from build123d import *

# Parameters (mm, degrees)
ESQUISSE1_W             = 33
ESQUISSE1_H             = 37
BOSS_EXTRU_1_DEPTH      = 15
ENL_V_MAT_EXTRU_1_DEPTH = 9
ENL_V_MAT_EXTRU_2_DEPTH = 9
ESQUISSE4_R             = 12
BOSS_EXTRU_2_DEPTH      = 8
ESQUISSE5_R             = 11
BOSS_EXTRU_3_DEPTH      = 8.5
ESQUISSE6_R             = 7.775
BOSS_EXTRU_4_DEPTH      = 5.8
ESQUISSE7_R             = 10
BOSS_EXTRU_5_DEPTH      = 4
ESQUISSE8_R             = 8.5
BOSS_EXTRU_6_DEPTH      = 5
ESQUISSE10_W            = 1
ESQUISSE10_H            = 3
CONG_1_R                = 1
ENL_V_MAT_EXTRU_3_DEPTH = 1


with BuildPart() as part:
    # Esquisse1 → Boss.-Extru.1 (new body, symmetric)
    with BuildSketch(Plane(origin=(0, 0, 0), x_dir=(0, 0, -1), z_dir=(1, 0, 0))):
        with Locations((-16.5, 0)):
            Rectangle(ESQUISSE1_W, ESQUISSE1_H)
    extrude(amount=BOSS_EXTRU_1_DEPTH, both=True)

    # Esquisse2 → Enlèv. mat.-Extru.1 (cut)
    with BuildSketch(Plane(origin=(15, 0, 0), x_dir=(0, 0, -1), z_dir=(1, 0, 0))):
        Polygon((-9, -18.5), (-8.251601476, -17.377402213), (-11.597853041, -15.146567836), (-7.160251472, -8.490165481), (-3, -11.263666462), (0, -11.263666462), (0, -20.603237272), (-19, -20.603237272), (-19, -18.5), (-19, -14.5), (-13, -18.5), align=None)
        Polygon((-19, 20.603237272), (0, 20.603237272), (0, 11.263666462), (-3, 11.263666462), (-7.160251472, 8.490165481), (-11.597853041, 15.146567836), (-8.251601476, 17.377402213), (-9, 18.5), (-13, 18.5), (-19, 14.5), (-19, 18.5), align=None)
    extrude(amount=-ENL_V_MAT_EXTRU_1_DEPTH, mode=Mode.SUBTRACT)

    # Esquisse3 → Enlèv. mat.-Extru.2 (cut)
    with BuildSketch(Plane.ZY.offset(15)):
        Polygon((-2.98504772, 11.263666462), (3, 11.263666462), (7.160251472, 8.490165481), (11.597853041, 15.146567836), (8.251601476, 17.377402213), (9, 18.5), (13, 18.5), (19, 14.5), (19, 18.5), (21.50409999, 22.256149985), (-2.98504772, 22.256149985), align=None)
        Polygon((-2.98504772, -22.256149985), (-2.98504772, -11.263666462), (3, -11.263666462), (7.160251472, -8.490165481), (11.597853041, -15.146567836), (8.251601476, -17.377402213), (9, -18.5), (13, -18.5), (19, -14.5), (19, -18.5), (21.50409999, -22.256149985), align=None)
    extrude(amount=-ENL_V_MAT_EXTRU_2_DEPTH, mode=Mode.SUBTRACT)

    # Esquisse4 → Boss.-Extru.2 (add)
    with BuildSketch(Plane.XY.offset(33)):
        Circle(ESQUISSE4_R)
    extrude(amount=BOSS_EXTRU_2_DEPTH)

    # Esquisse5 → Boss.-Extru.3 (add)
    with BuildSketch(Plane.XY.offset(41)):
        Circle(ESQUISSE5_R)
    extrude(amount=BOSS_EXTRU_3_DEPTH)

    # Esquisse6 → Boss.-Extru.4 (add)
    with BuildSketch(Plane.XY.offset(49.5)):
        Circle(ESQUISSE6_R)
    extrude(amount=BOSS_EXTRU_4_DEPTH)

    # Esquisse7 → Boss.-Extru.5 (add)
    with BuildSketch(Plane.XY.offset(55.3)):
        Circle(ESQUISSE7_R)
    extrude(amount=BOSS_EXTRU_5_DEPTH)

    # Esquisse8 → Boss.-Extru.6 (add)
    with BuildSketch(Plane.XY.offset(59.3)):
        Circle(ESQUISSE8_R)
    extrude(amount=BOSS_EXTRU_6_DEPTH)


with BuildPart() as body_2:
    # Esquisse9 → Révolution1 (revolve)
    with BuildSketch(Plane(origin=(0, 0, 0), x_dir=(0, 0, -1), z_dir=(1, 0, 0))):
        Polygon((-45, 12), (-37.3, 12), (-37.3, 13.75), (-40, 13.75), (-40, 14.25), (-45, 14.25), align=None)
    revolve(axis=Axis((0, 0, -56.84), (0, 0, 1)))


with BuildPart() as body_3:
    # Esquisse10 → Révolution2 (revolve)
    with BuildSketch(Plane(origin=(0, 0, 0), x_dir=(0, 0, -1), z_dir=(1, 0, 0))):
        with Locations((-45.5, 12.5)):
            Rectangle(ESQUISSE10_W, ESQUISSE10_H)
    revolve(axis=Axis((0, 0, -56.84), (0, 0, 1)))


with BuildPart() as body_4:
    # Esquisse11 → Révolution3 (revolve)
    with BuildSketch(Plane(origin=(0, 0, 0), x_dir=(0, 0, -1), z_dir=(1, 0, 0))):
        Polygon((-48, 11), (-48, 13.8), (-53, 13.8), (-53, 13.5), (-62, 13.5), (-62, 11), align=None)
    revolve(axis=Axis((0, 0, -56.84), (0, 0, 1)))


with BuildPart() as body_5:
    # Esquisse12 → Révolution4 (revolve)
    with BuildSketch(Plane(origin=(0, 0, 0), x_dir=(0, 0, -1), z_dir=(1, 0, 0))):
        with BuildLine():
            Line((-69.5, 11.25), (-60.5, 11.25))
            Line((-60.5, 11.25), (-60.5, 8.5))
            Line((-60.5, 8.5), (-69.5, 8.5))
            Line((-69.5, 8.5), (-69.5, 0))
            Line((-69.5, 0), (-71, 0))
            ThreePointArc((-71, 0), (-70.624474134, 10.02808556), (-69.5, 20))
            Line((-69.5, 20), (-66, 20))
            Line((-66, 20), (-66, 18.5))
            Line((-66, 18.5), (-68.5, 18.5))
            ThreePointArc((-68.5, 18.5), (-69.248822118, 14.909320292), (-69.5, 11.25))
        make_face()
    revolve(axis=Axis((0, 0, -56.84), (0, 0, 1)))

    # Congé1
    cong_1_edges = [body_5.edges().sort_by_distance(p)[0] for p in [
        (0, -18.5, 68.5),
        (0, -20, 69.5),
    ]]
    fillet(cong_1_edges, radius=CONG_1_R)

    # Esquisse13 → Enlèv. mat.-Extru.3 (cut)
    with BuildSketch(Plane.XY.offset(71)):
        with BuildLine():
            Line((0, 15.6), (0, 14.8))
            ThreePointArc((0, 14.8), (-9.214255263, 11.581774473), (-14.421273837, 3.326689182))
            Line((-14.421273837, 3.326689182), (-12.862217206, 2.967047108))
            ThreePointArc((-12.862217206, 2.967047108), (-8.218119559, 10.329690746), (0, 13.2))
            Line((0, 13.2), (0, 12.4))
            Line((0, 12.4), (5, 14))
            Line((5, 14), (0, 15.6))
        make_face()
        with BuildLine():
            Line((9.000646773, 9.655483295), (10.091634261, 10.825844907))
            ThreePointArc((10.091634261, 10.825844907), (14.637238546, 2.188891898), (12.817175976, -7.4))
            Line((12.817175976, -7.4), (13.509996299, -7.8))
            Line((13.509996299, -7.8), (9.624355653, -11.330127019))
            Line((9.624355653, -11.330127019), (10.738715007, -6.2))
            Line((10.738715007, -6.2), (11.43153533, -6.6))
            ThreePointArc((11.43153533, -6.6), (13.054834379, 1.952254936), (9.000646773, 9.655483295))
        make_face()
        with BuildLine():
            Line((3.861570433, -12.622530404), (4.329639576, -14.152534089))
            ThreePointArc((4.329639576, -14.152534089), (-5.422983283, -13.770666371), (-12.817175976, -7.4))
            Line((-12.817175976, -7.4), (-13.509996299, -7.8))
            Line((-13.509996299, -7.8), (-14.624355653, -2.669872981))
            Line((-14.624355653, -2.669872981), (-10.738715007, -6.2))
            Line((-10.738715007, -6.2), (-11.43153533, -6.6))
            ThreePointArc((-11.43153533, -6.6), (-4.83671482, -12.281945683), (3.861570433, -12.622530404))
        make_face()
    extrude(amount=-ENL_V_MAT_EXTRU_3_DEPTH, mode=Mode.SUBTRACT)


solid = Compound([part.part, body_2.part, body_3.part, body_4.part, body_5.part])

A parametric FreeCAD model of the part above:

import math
import FreeCAD as App
import Part
import Sketcher
from FreeCAD import Vector
Q = App.Units.Quantity


def edges_at(feature, points):
    """Names of the edges that pass closest to the given points."""
    edges = feature.Shape.Edges
    near = lambda p: min(range(len(edges)), key=lambda i: edges[i].distToShape(Part.Vertex(*p))[0])
    return sorted({f"Edge{near(p) + 1}" for p in points})


def add_polygon(sketch, points):
    """Adds a closed chain of lines whose ends are joined by coincident constraints."""
    first, n = sketch.GeometryCount, len(points)
    for a, b in zip(points, points[1:] + points[:1]):
        sketch.addGeometry(Part.LineSegment(App.Vector(*a, 0), App.Vector(*b, 0)), False)
    for i in range(n):
        sketch.addConstraint(Sketcher.Constraint("Coincident", first + i, 2, first + (i + 1) % n, 1))

doc = App.newDocument("Part")
body = doc.addObject("PartDesign::Body", "Body")

sketch1 = body.newObject("Sketcher::SketchObject", "Sketch")
sketch1.AttachmentSupport = (doc.getObject("YZ_Plane"), [""])
sketch1.MapMode = "FlatFace"
add_polygon(sketch1, [(18, 33), (-18, 33), (-18, 0), (18, 0)])
sketch1.addConstraint([
    Sketcher.Constraint("Horizontal", 0),
    Sketcher.Constraint("Vertical", 1),
    Sketcher.Constraint("Horizontal", 2),
    Sketcher.Constraint("Vertical", 3),
    Sketcher.Constraint("Symmetric", 1, 2, 2, 2, -1, 1),
    Sketcher.Constraint("DistanceX", 0, 2, 0, 1, Q("37 mm")),
    Sketcher.Constraint("DistanceY", 1, 2, 1, 1, Q("33 mm")),
])
pad1 = body.newObject("PartDesign::Pad", "Pad")
pad1.Profile = sketch1
pad1.Length = 30
pad1.Midplane = True

sketch2 = body.newObject("Sketcher::SketchObject", "Sketch001")
sketch2.AttachmentSupport = (doc.getObject("YZ_Plane"), [""])
sketch2.MapMode = "FlatFace"
sketch2.AttachmentOffset = App.Placement(Vector(0, 0, 15), App.Rotation())
add_polygon(sketch2, [(-17.4, 8.3), (-18.5, 9), (-18.5, 13), (-14.5, 19), (-20.6, 19), (-20.6, 0), (-11.3, 0), (-11.3, 3), (-8.5, 7.2), (-15.1, 11.6)])
add_polygon(sketch2, [(20.6, 0), (20.6, 19), (14.5, 19), (18.5, 13), (18.5, 9), (17.4, 8.3), (15.1, 11.6), (8.5, 7.2), (11.3, 3), (11.3, 0)])
sketch2.addConstraint([
    Sketcher.Constraint("Vertical", 1),
    Sketcher.Constraint("Horizontal", 3),
    Sketcher.Constraint("Vertical", 4),
    Sketcher.Constraint("Horizontal", 5),
    Sketcher.Constraint("Vertical", 6),
    Sketcher.Constraint("Vertical", 10),
    Sketcher.Constraint("Horizontal", 11),
    Sketcher.Constraint("Vertical", 13),
    Sketcher.Constraint("Vertical", 18),
    Sketcher.Constraint("Horizontal", 19),
    Sketcher.Constraint("Symmetric", 5, 2, 18, 2, -1, 1),
    Sketcher.Constraint("Symmetric", 3, 2, 10, 2, -2),
    Sketcher.Constraint("Symmetric", 1, 2, 12, 2, -2),
    Sketcher.Constraint("Symmetric", 9, 2, 14, 2, -2),
    Sketcher.Constraint("Symmetric", 8, 2, 15, 2, -2),
    Sketcher.Constraint("Symmetric", 7, 2, 16, 2, -2),
    Sketcher.Constraint("PointOnObject", 4, 2, -1),
    Sketcher.Constraint("Perpendicular", 0, 2),
    Sketcher.Constraint("Parallel", 2, 7),
    Sketcher.Constraint("Perpendicular", 7, 8),
    Sketcher.Constraint("Perpendicular", 8, 9),
    Sketcher.Constraint("Perpendicular", 12, 14),
    Sketcher.Constraint("Perpendicular", 14, 15),
    Sketcher.Constraint("Perpendicular", 16, 17),
    Sketcher.Constraint("DistanceY", 1, 1, 1, 2, Q("4 mm")),
    Sketcher.Constraint("DistanceY", 4, 2, 4, 1, Q("19 mm")),
    Sketcher.Constraint("DistanceY", 6, 1, 6, 2, Q("3 mm")),
    Sketcher.Constraint("Distance", 7, Q("5 mm")),
    Sketcher.Constraint("Distance", 8, Q("8 mm")),
    Sketcher.Constraint("DistanceY", -1, 1, 0, 2, Q("9 mm")),
    Sketcher.Constraint("DistanceX", 1, 2, 2, 2, Q("4 mm")),
    Sketcher.Constraint("DistanceX", 2, 2, 11, 2, Q("29 mm")),
    Sketcher.Constraint("DistanceX", 5, 1, 5, 2, Q("9.339571 mm")),
    Sketcher.Constraint("DistanceY", -1, 1, 9, 2, Q("8.251601 mm")),
])
pocket1 = body.newObject("PartDesign::Pocket", "Pocket")
pocket1.Profile = sketch2
pocket1.Length = 9

sketch3 = body.newObject("Sketcher::SketchObject", "Sketch002")
sketch3.AttachmentSupport = (doc.getObject("YZ_Plane"), [""])
sketch3.MapMode = "FlatFace"
sketch3.AttachmentOffset = App.Placement(Vector(0, 0, -15), App.Rotation())
add_polygon(sketch3, [(11.3, -3), (11.3, 3), (8.5, 7.2), (15.1, 11.6), (17.4, 8.3), (18.5, 9), (18.5, 13), (14.5, 19), (18.5, 19), (22.3, 21.5), (22.3, -3)])
add_polygon(sketch3, [(-11.3, -3), (-22.3, -3), (-22.3, 21.5), (-18.5, 19), (-14.5, 19), (-18.5, 13), (-18.5, 9), (-17.4, 8.3), (-15.1, 11.6), (-8.5, 7.2), (-11.3, 3)])
sketch3.addConstraint([
    Sketcher.Constraint("Vertical", 0),
    Sketcher.Constraint("Vertical", 5),
    Sketcher.Constraint("Horizontal", 7),
    Sketcher.Constraint("Vertical", 9),
    Sketcher.Constraint("Horizontal", 10),
    Sketcher.Constraint("Horizontal", 11),
    Sketcher.Constraint("Vertical", 12),
    Sketcher.Constraint("Horizontal", 14),
    Sketcher.Constraint("Vertical", 16),
    Sketcher.Constraint("Vertical", 21),
    Sketcher.Constraint("Symmetric", 9, 2, 11, 2, -2),
    Sketcher.Constraint("Symmetric", 7, 2, 13, 2, -2),
    Sketcher.Constraint("Symmetric", 5, 2, 15, 2, -2),
    Sketcher.Constraint("Symmetric", 3, 2, 17, 2, -2),
    Sketcher.Constraint("Symmetric", 2, 2, 18, 2, -2),
    Sketcher.Constraint("Symmetric", 1, 2, 19, 2, -2),
    Sketcher.Constraint("Symmetric", 0, 2, 20, 2, -2),
    Sketcher.Constraint("Perpendicular", 1, 2),
    Sketcher.Constraint("Perpendicular", 2, 3),
    Sketcher.Constraint("Perpendicular", 3, 4),
    Sketcher.Constraint("Perpendicular", 4, 6),
    Sketcher.Constraint("Perpendicular", 6, 8),
    Sketcher.Constraint("Perpendicular", 13, 15),
    Sketcher.Constraint("Perpendicular", 15, 17),
    Sketcher.Constraint("Perpendicular", 17, 18),
    Sketcher.Constraint("Vertical", 5, 2, 7, 2),
    Sketcher.Constraint("Equal", 14, 5),
    Sketcher.Constraint("DistanceX", 7, 1, 7, 2, Q("4 mm")),
    Sketcher.Constraint("Distance", 1, Q("5 mm")),
    Sketcher.Constraint("Distance", 2, Q("8 mm")),
    Sketcher.Constraint("DistanceY", -1, 1, 0, 2, Q("3 mm")),
    Sketcher.Constraint("DistanceY", -1, 1, 4, 2, Q("9 mm")),
    Sketcher.Constraint("DistanceY", -1, 1, 6, 2, Q("19 mm")),
    Sketcher.Constraint("DistanceX", 13, 2, 6, 2, Q("33 mm")),
    Sketcher.Constraint("DistanceY", -1, 1, 3, 2, Q("8.251601 mm")),
    Sketcher.Constraint("DistanceY", -1, 1, 8, 2, Q("21.5041 mm")),
    Sketcher.Constraint("DistanceY", 9, 2, 2, 2, Q("14.582901 mm")),
])
pocket2 = body.newObject("PartDesign::Pocket", "Pocket001")
pocket2.Profile = sketch3
pocket2.Length = 9
pocket2.Reversed = True

sketch4 = body.newObject("Sketcher::SketchObject", "Sketch003")
sketch4.AttachmentSupport = (doc.getObject("XY_Plane"), [""])
sketch4.MapMode = "FlatFace"
sketch4.AttachmentOffset = App.Placement(Vector(0, 0, 33), App.Rotation())
sketch4.addGeometry(Part.Circle(Vector(0, 0, 0), Vector(0, 0, 1), 12), False)
sketch4.addConstraint([
    Sketcher.Constraint("Coincident", 0, 3, -1, 1),
    Sketcher.Constraint("Diameter", 0, Q("24 mm")),
])
pad2 = body.newObject("PartDesign::Pad", "Pad001")
pad2.Profile = sketch4
pad2.Length = 8

sketch5 = body.newObject("Sketcher::SketchObject", "Sketch004")
sketch5.AttachmentSupport = (doc.getObject("XY_Plane"), [""])
sketch5.MapMode = "FlatFace"
sketch5.AttachmentOffset = App.Placement(Vector(0, 0, 41), App.Rotation())
sketch5.addGeometry(Part.Circle(Vector(0, 0, 0), Vector(0, 0, 1), 11), False)
sketch5.addConstraint([
    Sketcher.Constraint("Coincident", 0, 3, -1, 1),
    Sketcher.Constraint("Diameter", 0, Q("22 mm")),
])
pad3 = body.newObject("PartDesign::Pad", "Pad002")
pad3.Profile = sketch5
pad3.Length = 8.5

sketch6 = body.newObject("Sketcher::SketchObject", "Sketch005")
sketch6.AttachmentSupport = (doc.getObject("XY_Plane"), [""])
sketch6.MapMode = "FlatFace"
sketch6.AttachmentOffset = App.Placement(Vector(0, 0, 49.5), App.Rotation())
sketch6.addGeometry(Part.Circle(Vector(0, 0, 0), Vector(0, 0, 1), 8), False)
sketch6.addConstraint([
    Sketcher.Constraint("Coincident", 0, 3, -1, 1),
    Sketcher.Constraint("Diameter", 0, Q("15.55 mm")),
])
pad4 = body.newObject("PartDesign::Pad", "Pad003")
pad4.Profile = sketch6
pad4.Length = 5.8

sketch7 = body.newObject("Sketcher::SketchObject", "Sketch006")
sketch7.AttachmentSupport = (doc.getObject("XY_Plane"), [""])
sketch7.MapMode = "FlatFace"
sketch7.AttachmentOffset = App.Placement(Vector(0, 0, 55.3), App.Rotation())
sketch7.addGeometry(Part.Circle(Vector(0, 0, 0), Vector(0, 0, 1), 10), False)
sketch7.addConstraint([
    Sketcher.Constraint("Coincident", 0, 3, -1, 1),
    Sketcher.Constraint("Diameter", 0, Q("20 mm")),
])
pad5 = body.newObject("PartDesign::Pad", "Pad004")
pad5.Profile = sketch7
pad5.Length = 4

sketch8 = body.newObject("Sketcher::SketchObject", "Sketch007")
sketch8.AttachmentSupport = (doc.getObject("XY_Plane"), [""])
sketch8.MapMode = "FlatFace"
sketch8.AttachmentOffset = App.Placement(Vector(0, 0, 59.3), App.Rotation())
sketch8.addGeometry(Part.Circle(Vector(0, 0, 0), Vector(0, 0, 1), 8), False)
sketch8.addConstraint([
    Sketcher.Constraint("Coincident", 0, 3, -1, 1),
    Sketcher.Constraint("Diameter", 0, Q("17 mm")),
])
pad6 = body.newObject("PartDesign::Pad", "Pad005")
pad6.Profile = sketch8
pad6.Length = 5
body2 = doc.addObject("PartDesign::Body", "Body001")

sketch9 = body2.newObject("Sketcher::SketchObject", "Sketch008")
sketch9.AttachmentSupport = (doc.getObject("YZ_Plane001"), [""])
sketch9.MapMode = "FlatFace"
add_polygon(sketch9, [(12, 45), (12, 37.3), (13.8, 37.3), (13.8, 40), (14.2, 40), (14.2, 45)])
sketch9.addConstraint([
    Sketcher.Constraint("Vertical", 0),
    Sketcher.Constraint("Horizontal", 1),
    Sketcher.Constraint("Vertical", 2),
    Sketcher.Constraint("Horizontal", 3),
    Sketcher.Constraint("Vertical", 4),
    Sketcher.Constraint("Horizontal", 5),
    Sketcher.Constraint("DistanceY", 4, 1, 4, 2, Q("5 mm")),
    Sketcher.Constraint("DistanceX", 3, 1, 3, 2, Q("0.5 mm")),
    Sketcher.Constraint("DistanceY", 0, 2, 0, 1, Q("7.7 mm")),
    Sketcher.Constraint("DistanceX", -1, 1, 0, 2, Q("12 mm")),
    Sketcher.Constraint("DistanceY", -1, 1, 2, 2, Q("40 mm")),
    Sketcher.Constraint("DistanceX", 1, 1, 1, 2, Q("1.75 mm")),
])
revolution = body2.newObject("PartDesign::Revolution", "Revolution")
revolution.Profile = sketch9
revolution.ReferenceAxis = (sketch9, ["V_Axis"])
revolution.Angle = 360
body3 = doc.addObject("PartDesign::Body", "Body002")

sketch10 = body3.newObject("Sketcher::SketchObject", "Sketch009")
sketch10.AttachmentSupport = (doc.getObject("YZ_Plane002"), [""])
sketch10.MapMode = "FlatFace"
add_polygon(sketch10, [(14, 46), (11, 46), (11, 45), (14, 45)])
sketch10.addConstraint([
    Sketcher.Constraint("Horizontal", 0),
    Sketcher.Constraint("Vertical", 1),
    Sketcher.Constraint("Horizontal", 2),
    Sketcher.Constraint("Vertical", 3),
    Sketcher.Constraint("DistanceX", 0, 2, 0, 1, Q("3 mm")),
    Sketcher.Constraint("DistanceY", 1, 2, 1, 1, Q("1 mm")),
    Sketcher.Constraint("DistanceX", -1, 1, 0, 2, Q("11 mm")),
    Sketcher.Constraint("DistanceY", -1, 1, 0, 2, Q("46 mm")),
])
revolution2 = body3.newObject("PartDesign::Revolution", "Revolution001")
revolution2.Profile = sketch10
revolution2.ReferenceAxis = (sketch10, ["V_Axis"])
revolution2.Angle = 360
body4 = doc.addObject("PartDesign::Body", "Body003")

sketch11 = body4.newObject("Sketcher::SketchObject", "Sketch010")
sketch11.AttachmentSupport = (doc.getObject("YZ_Plane003"), [""])
sketch11.MapMode = "FlatFace"
add_polygon(sketch11, [(11, 48), (13.8, 48), (13.8, 53), (13.5, 53), (13.5, 62), (11, 62)])
sketch11.addConstraint([
    Sketcher.Constraint("Horizontal", 0),
    Sketcher.Constraint("Vertical", 1),
    Sketcher.Constraint("Horizontal", 2),
    Sketcher.Constraint("Vertical", 3),
    Sketcher.Constraint("Horizontal", 4),
    Sketcher.Constraint("Vertical", 5),
    Sketcher.Constraint("DistanceY", 1, 1, 1, 2, Q("5 mm")),
    Sketcher.Constraint("DistanceY", 3, 1, 3, 2, Q("9 mm")),
    Sketcher.Constraint("DistanceX", 0, 1, 0, 2, Q("2.8 mm")),
    Sketcher.Constraint("DistanceX", 2, 2, 2, 1, Q("0.3 mm")),
    Sketcher.Constraint("DistanceY", -1, 1, 0, 2, Q("48 mm")),
    Sketcher.Constraint("DistanceX", -1, 1, 4, 2, Q("11 mm")),
])
revolution3 = body4.newObject("PartDesign::Revolution", "Revolution002")
revolution3.Profile = sketch11
revolution3.ReferenceAxis = (sketch11, ["V_Axis"])
revolution3.Angle = 360
body5 = doc.addObject("PartDesign::Body", "Body004")

sketch12 = body5.newObject("Sketcher::SketchObject", "Sketch011")
sketch12.AttachmentSupport = (doc.getObject("YZ_Plane004"), [""])
sketch12.MapMode = "FlatFace"
sketch12.addGeometry([
    Part.LineSegment(Vector(11.2, 60.5, 0), Vector(11.2, 69.5, 0)),
    Part.ArcOfCircle(Part.Circle(Vector(11.3, 42.7, 0), Vector(0, 0, 1), 26.8), math.radians(74.29), math.radians(90)),
    Part.LineSegment(Vector(18.5, 68.5, 0), Vector(18.5, 66, 0)),
    Part.LineSegment(Vector(18.5, 66, 0), Vector(20, 66, 0)),
    Part.LineSegment(Vector(20, 66, 0), Vector(20, 69.5, 0)),
    Part.ArcOfCircle(Part.Circle(Vector(0, -63.1, 0), Vector(0, 0, 1), 134.1), math.radians(81.42), math.radians(90)),
    Part.LineSegment(Vector(0, 71, 0), Vector(0, 69.5, 0)),
    Part.LineSegment(Vector(0, 69.5, 0), Vector(8.5, 69.5, 0)),
    Part.LineSegment(Vector(8.5, 69.5, 0), Vector(8.5, 60.5, 0)),
    Part.LineSegment(Vector(8.5, 60.5, 0), Vector(11.2, 60.5, 0)),
], False)
sketch12.addConstraint([
    Sketcher.Constraint("Coincident", 0, 2, 1, 2),
    Sketcher.Constraint("Coincident", 1, 1, 2, 1),
    Sketcher.Constraint("Coincident", 2, 2, 3, 1),
    Sketcher.Constraint("Coincident", 3, 2, 4, 1),
    Sketcher.Constraint("Coincident", 4, 2, 5, 1),
    Sketcher.Constraint("Coincident", 5, 2, 6, 1),
    Sketcher.Constraint("Coincident", 6, 2, 7, 1),
    Sketcher.Constraint("Coincident", 7, 2, 8, 1),
    Sketcher.Constraint("Coincident", 8, 2, 9, 1),
    Sketcher.Constraint("Coincident", 9, 2, 0, 1),
    Sketcher.Constraint("Vertical", 0),
    Sketcher.Constraint("Vertical", 2),
    Sketcher.Constraint("Horizontal", 3),
    Sketcher.Constraint("Vertical", 4),
    Sketcher.Constraint("Vertical", 6),
    Sketcher.Constraint("Horizontal", 7),
    Sketcher.Constraint("Vertical", 8),
    Sketcher.Constraint("Horizontal", 9),
    Sketcher.Constraint("PointOnObject", 5, 3, -2),
    Sketcher.Constraint("PointOnObject", 5, 2, -2),
    Sketcher.Constraint("Horizontal", 0, 2, 4, 2),
    Sketcher.Constraint("Horizontal", 4, 2, 6, 2),
    Sketcher.Constraint("Vertical", 1, 3, 0, 2),
    Sketcher.Constraint("Equal", 3, 6),
    Sketcher.Constraint("DistanceY", 0, 1, 0, 2, Q("9 mm")),
    Sketcher.Constraint("DistanceX", 3, 1, 3, 2, Q("1.5 mm")),
    Sketcher.Constraint("DistanceX", 7, 1, 7, 2, Q("8.5 mm")),
    Sketcher.Constraint("DistanceY", 2, 2, 2, 1, Q("2.5 mm")),
    Sketcher.Constraint("DistanceY", 4, 1, 4, 2, Q("3.5 mm")),
    Sketcher.Constraint("DistanceY", -1, 1, 2, 2, Q("66 mm")),
    Sketcher.Constraint("DistanceX", -1, 1, 3, 2, Q("20 mm")),
    Sketcher.Constraint("DistanceX", 9, 1, 9, 2, Q("2.75 mm")),
])
revolution4 = body5.newObject("PartDesign::Revolution", "Revolution003")
revolution4.Profile = sketch12
revolution4.ReferenceAxis = (sketch12, ["V_Axis"])
revolution4.Angle = 360
doc.recompute()

fillet = body5.newObject("PartDesign::Fillet", "Fillet")
fillet.Base = (revolution4, edges_at(revolution4, [(0, -18.5, 68.5), (0, -20, 69.5)]))
fillet.Radius = 1

sketch13 = body5.newObject("Sketcher::SketchObject", "Sketch012")
sketch13.AttachmentSupport = (doc.getObject("XY_Plane004"), [""])
sketch13.MapMode = "FlatFace"
sketch13.AttachmentOffset = App.Placement(Vector(0, 0, 71), App.Rotation())
sketch13.addGeometry([
    Part.LineSegment(Vector(0, 15.6, 0), Vector(0, 14.8, 0)),
    Part.ArcOfCircle(Part.Circle(Vector(0, 0, 0), Vector(0, 0, 1), 14.8), math.radians(90), math.radians(167)),
    Part.LineSegment(Vector(-14.4, 3.3, 0), Vector(-12.9, 3, 0)),
    Part.ArcOfCircle(Part.Circle(Vector(0, 0, 0), Vector(0, 0, 1), 13.2), math.radians(90), math.radians(167)),
    Part.LineSegment(Vector(0, 13.2, 0), Vector(0, 12.4, 0)),
    Part.LineSegment(Vector(0, 12.4, 0), Vector(5, 14, 0)),
    Part.LineSegment(Vector(5, 14, 0), Vector(0, 15.6, 0)),
    Part.LineSegment(Vector(10.1, 10.8, 0), Vector(9, 9.7, 0)),
    Part.ArcOfCircle(Part.Circle(Vector(0, 0, 0), Vector(0, 0, 1), 13.2), math.radians(-30), math.radians(47)),
    Part.LineSegment(Vector(11.4, -6.6, 0), Vector(10.7, -6.2, 0)),
    Part.LineSegment(Vector(10.7, -6.2, 0), Vector(9.6, -11.3, 0)),
    Part.LineSegment(Vector(9.6, -11.3, 0), Vector(13.5, -7.8, 0)),
    Part.LineSegment(Vector(13.5, -7.8, 0), Vector(12.8, -7.4, 0)),
    Part.ArcOfCircle(Part.Circle(Vector(0, 0, 0), Vector(0, 0, 1), 14.8), math.radians(-30), math.radians(47)),
    Part.LineSegment(Vector(4.3, -14.2, 0), Vector(3.9, -12.6, 0)),
    Part.ArcOfCircle(Part.Circle(Vector(0, 0, 0), Vector(0, 0, 1), 13.2), math.radians(-150), math.radians(-73)),
    Part.LineSegment(Vector(-11.4, -6.6, 0), Vector(-10.7, -6.2, 0)),
    Part.LineSegment(Vector(-10.7, -6.2, 0), Vector(-14.6, -2.7, 0)),
    Part.LineSegment(Vector(-14.6, -2.7, 0), Vector(-13.5, -7.8, 0)),
    Part.LineSegment(Vector(-13.5, -7.8, 0), Vector(-12.8, -7.4, 0)),
    Part.ArcOfCircle(Part.Circle(Vector(0, 0, 0), Vector(0, 0, 1), 14.8), math.radians(-150), math.radians(-73)),
], False)
sketch13.addConstraint([
    Sketcher.Constraint("Coincident", 0, 2, 1, 1),
    Sketcher.Constraint("Coincident", 1, 2, 2, 1),
    Sketcher.Constraint("Coincident", 2, 2, 3, 2),
    Sketcher.Constraint("Coincident", 3, 1, 4, 1),
    Sketcher.Constraint("Coincident", 4, 2, 5, 1),
    Sketcher.Constraint("Coincident", 5, 2, 6, 1),
    Sketcher.Constraint("Coincident", 6, 2, 0, 1),
    Sketcher.Constraint("Coincident", 7, 2, 8, 2),
    Sketcher.Constraint("Coincident", 8, 1, 9, 1),
    Sketcher.Constraint("Coincident", 9, 2, 10, 1),
    Sketcher.Constraint("Coincident", 10, 2, 11, 1),
    Sketcher.Constraint("Coincident", 11, 2, 12, 1),
    Sketcher.Constraint("Coincident", 12, 2, 13, 1),
    Sketcher.Constraint("Coincident", 13, 2, 7, 1),
    Sketcher.Constraint("Coincident", 14, 2, 15, 2),
    Sketcher.Constraint("Coincident", 15, 1, 16, 1),
    Sketcher.Constraint("Coincident", 16, 2, 17, 1),
    Sketcher.Constraint("Coincident", 17, 2, 18, 1),
    Sketcher.Constraint("Coincident", 18, 2, 19, 1),
    Sketcher.Constraint("Coincident", 19, 2, 20, 1),
    Sketcher.Constraint("Coincident", 20, 2, 14, 1),
    Sketcher.Constraint("Vertical", 0),
    Sketcher.Constraint("Vertical", 4),
    Sketcher.Constraint("Coincident", 1, 3, -1, 1),
    Sketcher.Constraint("Coincident", 3, 3, -1, 1),
    Sketcher.Constraint("Coincident", 8, 3, -1, 1),
    Sketcher.Constraint("Coincident", 13, 3, -1, 1),
    Sketcher.Constraint("Coincident", 15, 3, -1, 1),
    Sketcher.Constraint("Coincident", 20, 3, -1, 1),
    Sketcher.Constraint("Equal", 3, 8),
    Sketcher.Constraint("Equal", 1, 13),
    Sketcher.Constraint("Equal", 8, 15),
    Sketcher.Constraint("Equal", 13, 20),
    Sketcher.Constraint("Symmetric", 9, 2, 16, 2, -2),
    Sketcher.Constraint("Symmetric", 11, 2, 18, 2, -2),
    Sketcher.Constraint("PointOnObject", 0, 2, -2),
    Sketcher.Constraint("PointOnObject", 3, 1, -2),
    Sketcher.Constraint("Parallel", 9, 12),
    Sketcher.Constraint("Parallel", 16, 19),
    Sketcher.Constraint("Horizontal", 8, 1, 15, 1),
    Sketcher.Constraint("Equal", 0, 4),
    Sketcher.Constraint("Equal", 5, 6),
    Sketcher.Constraint("Equal", 6, 10),
    Sketcher.Constraint("Equal", 10, 11),
    Sketcher.Constraint("Equal", 9, 12),
    Sketcher.Constraint("Equal", 11, 17),
    Sketcher.Constraint("Equal", 17, 18),
    Sketcher.Constraint("Radius", 1, Q("14.8 mm")),
    Sketcher.Constraint("Radius", 3, Q("13.2 mm")),
    Sketcher.Constraint("Angle", 9, Q("150 deg")),
    Sketcher.Constraint("DistanceY", 0, 2, 0, 1, Q("0.8 mm")),
    Sketcher.Constraint("DistanceX", -1, 1, 5, 2, Q("5 mm")),
    Sketcher.Constraint("Distance", 9, Q("0.8 mm")),
    Sketcher.Constraint("DistanceY", 8, 1, -1, 1, Q("6.6 mm")),
    Sketcher.Constraint("DistanceY", 11, 2, -1, 1, Q("7.8 mm")),
    Sketcher.Constraint("DistanceY", -1, 1, 1, 2, Q("3.326689 mm")),
    Sketcher.Constraint("DistanceX", -1, 1, 14, 2, Q("3.86157 mm")),
    Sketcher.Constraint("DistanceX", -1, 1, 20, 2, Q("4.32964 mm")),
    Sketcher.Constraint("DistanceY", 7, 2, 13, 2, Q("1.170362 mm")),
    Sketcher.Constraint("DistanceX", 2, 2, 15, 1, Q("1.430682 mm")),
    Sketcher.Constraint("DistanceX", -1, 1, 7, 2, Q("9.000647 mm")),
])
pocket3 = body5.newObject("PartDesign::Pocket", "Pocket002")
pocket3.Profile = sketch13
pocket3.Length = 1

doc.recompute()
